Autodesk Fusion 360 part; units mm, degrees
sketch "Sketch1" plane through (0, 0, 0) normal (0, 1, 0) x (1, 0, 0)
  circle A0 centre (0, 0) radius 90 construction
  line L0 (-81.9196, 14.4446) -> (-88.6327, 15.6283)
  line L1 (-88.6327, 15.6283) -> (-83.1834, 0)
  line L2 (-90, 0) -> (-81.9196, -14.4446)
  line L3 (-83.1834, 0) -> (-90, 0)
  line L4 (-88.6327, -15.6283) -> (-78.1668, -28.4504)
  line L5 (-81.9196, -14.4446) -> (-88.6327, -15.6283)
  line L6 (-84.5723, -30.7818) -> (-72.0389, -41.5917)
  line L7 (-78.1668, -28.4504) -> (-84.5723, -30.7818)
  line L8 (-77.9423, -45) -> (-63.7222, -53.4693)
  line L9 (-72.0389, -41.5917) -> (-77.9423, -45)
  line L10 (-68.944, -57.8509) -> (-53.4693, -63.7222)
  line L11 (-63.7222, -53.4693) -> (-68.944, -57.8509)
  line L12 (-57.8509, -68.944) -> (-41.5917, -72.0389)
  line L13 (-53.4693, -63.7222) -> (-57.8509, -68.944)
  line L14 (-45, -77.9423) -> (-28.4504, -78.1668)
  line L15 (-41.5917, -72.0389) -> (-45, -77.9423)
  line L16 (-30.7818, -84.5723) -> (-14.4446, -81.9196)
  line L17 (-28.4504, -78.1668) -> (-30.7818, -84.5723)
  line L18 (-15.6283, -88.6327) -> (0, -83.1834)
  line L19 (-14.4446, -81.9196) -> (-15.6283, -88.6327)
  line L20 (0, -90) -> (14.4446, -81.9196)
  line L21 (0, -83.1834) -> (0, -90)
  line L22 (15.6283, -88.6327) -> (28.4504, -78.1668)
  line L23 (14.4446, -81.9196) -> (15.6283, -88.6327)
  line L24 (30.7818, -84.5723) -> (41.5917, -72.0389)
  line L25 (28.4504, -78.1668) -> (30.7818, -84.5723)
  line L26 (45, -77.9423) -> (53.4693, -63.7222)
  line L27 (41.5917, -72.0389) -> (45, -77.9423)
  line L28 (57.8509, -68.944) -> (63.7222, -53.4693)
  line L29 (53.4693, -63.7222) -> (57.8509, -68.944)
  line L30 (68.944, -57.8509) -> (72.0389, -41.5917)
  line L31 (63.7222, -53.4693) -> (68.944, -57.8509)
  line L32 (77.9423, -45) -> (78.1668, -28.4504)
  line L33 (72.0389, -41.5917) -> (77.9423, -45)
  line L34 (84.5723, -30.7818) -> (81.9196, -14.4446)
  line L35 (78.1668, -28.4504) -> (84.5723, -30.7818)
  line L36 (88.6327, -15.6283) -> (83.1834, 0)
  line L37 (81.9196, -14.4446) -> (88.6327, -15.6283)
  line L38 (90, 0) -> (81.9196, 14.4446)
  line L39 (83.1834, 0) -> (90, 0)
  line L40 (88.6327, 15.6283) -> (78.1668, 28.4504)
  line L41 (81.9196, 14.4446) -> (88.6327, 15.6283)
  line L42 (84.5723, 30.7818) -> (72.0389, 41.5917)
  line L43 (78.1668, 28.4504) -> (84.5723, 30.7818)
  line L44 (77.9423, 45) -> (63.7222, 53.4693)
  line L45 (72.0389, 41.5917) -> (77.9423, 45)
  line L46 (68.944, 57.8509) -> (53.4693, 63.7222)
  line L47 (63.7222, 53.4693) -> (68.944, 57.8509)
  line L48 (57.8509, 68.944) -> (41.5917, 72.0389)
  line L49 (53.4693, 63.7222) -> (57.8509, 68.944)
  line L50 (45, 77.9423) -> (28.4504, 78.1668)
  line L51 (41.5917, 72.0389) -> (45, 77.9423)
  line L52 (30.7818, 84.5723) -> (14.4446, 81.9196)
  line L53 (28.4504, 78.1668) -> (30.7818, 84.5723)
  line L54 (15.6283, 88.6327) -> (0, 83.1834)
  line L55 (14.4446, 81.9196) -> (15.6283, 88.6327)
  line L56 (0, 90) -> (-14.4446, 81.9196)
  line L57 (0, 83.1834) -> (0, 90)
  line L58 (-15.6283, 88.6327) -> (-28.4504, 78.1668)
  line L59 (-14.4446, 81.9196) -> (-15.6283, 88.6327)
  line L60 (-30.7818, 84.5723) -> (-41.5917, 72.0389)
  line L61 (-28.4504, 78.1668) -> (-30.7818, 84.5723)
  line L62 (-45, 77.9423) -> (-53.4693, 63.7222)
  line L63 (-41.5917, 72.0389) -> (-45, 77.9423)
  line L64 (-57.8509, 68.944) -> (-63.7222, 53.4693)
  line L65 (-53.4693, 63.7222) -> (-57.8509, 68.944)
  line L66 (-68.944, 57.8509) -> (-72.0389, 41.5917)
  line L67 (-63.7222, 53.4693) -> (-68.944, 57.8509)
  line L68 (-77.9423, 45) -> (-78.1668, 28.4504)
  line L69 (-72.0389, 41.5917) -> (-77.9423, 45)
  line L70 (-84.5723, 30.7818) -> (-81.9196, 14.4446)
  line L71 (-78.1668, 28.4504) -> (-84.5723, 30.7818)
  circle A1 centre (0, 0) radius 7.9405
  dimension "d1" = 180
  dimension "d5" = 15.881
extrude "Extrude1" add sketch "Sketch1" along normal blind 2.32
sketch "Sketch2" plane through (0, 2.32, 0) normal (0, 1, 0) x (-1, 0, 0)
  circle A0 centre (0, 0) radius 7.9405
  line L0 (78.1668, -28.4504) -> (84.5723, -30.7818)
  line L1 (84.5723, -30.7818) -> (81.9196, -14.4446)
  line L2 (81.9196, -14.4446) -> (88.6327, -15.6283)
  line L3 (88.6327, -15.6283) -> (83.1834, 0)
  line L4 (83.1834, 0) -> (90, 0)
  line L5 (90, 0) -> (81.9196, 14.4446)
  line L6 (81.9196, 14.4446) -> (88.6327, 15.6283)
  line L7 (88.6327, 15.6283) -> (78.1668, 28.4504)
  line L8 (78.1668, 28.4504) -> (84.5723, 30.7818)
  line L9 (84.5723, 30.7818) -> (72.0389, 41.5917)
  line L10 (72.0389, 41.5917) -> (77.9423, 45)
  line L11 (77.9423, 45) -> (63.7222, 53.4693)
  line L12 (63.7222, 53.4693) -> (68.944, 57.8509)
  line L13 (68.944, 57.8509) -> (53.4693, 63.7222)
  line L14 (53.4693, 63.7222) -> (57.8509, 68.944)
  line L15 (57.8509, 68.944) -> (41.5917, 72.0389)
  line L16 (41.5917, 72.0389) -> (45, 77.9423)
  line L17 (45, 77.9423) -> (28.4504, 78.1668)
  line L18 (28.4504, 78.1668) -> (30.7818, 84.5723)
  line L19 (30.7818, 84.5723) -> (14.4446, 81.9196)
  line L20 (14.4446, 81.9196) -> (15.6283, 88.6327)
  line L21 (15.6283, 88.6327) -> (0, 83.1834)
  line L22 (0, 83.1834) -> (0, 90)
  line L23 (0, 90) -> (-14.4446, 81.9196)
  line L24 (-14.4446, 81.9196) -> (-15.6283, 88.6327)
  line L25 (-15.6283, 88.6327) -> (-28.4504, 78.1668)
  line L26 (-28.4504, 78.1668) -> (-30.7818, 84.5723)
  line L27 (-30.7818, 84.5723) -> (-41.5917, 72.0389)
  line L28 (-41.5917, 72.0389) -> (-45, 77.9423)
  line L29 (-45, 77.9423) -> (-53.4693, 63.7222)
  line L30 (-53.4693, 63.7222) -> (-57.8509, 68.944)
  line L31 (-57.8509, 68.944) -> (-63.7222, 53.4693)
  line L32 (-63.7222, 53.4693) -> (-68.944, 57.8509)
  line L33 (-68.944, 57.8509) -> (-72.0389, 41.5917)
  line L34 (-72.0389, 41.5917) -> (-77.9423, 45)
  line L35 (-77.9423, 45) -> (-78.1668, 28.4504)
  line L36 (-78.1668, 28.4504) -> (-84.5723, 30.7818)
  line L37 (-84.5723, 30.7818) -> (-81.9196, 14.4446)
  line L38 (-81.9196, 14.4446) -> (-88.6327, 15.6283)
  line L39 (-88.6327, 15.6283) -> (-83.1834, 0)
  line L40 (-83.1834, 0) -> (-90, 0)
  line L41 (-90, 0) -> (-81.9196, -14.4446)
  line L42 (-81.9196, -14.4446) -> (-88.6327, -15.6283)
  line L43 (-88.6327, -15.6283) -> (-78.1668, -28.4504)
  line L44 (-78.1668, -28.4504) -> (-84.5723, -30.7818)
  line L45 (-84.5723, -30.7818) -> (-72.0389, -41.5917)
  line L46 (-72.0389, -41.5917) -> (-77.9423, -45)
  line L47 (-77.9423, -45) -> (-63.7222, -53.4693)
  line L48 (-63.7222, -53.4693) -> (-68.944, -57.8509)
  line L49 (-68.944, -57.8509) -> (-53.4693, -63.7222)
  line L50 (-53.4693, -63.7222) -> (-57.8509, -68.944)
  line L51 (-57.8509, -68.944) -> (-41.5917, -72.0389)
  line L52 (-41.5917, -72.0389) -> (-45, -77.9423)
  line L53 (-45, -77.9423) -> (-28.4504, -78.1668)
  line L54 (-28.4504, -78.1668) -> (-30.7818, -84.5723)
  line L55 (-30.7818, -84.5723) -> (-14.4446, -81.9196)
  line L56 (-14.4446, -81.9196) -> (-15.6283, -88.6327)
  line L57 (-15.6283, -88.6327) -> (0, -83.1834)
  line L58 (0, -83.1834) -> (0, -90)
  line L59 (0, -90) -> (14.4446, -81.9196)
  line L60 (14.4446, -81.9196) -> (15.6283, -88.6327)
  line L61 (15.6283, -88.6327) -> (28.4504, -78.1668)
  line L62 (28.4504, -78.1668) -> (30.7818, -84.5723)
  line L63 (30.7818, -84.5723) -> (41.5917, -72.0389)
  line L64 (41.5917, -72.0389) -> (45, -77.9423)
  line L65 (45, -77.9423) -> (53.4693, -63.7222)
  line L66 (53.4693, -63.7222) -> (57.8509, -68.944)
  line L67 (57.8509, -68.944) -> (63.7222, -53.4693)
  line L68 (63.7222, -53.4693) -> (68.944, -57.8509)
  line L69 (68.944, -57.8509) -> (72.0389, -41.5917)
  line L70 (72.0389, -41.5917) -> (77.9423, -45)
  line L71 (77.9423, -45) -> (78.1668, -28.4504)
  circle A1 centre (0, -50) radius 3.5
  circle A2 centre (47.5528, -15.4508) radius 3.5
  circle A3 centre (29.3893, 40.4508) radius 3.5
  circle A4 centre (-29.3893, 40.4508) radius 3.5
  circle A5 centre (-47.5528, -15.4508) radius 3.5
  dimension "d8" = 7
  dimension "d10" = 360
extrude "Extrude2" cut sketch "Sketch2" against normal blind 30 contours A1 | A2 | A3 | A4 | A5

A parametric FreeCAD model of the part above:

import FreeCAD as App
import Part
import Sketcher
Q = App.Units.Quantity

doc = App.newDocument("Part")
body = doc.addObject("PartDesign::Body", "Body")

sketch1 = body.newObject("Sketcher::SketchObject", "Sketch")
sketch1.AttachmentSupport = (doc.getObject("XZ_Plane"), [""])
sketch1.MapMode = "FlatFace"
sketch1.addGeometry([
    Part.LineSegment(App.Vector(-85, -31, 0), App.Vector(-82, -14, 0)),
    Part.LineSegment(App.Vector(-82, -14, 0), App.Vector(-89, -16, 0)),
    Part.LineSegment(App.Vector(-89, -16, 0), App.Vector(-83, 0, 0)),
    Part.LineSegment(App.Vector(-83, 0, 0), App.Vector(-90, 0, 0)),
    Part.LineSegment(App.Vector(-90, 0, 0), App.Vector(-82, 14, 0)),
    Part.LineSegment(App.Vector(-82, 14, 0), App.Vector(-89, 16, 0)),
    Part.LineSegment(App.Vector(-89, 16, 0), App.Vector(-78, 28, 0)),
    Part.LineSegment(App.Vector(-78, 28, 0), App.Vector(-85, 31, 0)),
    Part.LineSegment(App.Vector(-85, 31, 0), App.Vector(-72, 42, 0)),
    Part.LineSegment(App.Vector(-72, 42, 0), App.Vector(-78, 45, 0)),
    Part.LineSegment(App.Vector(-78, 45, 0), App.Vector(-64, 53, 0)),
    Part.LineSegment(App.Vector(-64, 53, 0), App.Vector(-69, 58, 0)),
    Part.LineSegment(App.Vector(-69, 58, 0), App.Vector(-53, 64, 0)),
    Part.LineSegment(App.Vector(-53, 64, 0), App.Vector(-58, 69, 0)),
    Part.LineSegment(App.Vector(-58, 69, 0), App.Vector(-42, 72, 0)),
    Part.LineSegment(App.Vector(-42, 72, 0), App.Vector(-45, 78, 0)),
    Part.LineSegment(App.Vector(-45, 78, 0), App.Vector(-28, 78, 0)),
    Part.LineSegment(App.Vector(-28, 78, 0), App.Vector(-31, 85, 0)),
    Part.LineSegment(App.Vector(-31, 85, 0), App.Vector(-14, 82, 0)),
    Part.LineSegment(App.Vector(-14, 82, 0), App.Vector(-16, 89, 0)),
    Part.LineSegment(App.Vector(-16, 89, 0), App.Vector(0, 83, 0)),
    Part.LineSegment(App.Vector(0, 83, 0), App.Vector(0, 90, 0)),
    Part.LineSegment(App.Vector(0, 90, 0), App.Vector(14, 82, 0)),
    Part.LineSegment(App.Vector(14, 82, 0), App.Vector(16, 89, 0)),
    Part.LineSegment(App.Vector(16, 89, 0), App.Vector(28, 78, 0)),
    Part.LineSegment(App.Vector(28, 78, 0), App.Vector(31, 85, 0)),
    Part.LineSegment(App.Vector(31, 85, 0), App.Vector(42, 72, 0)),
    Part.LineSegment(App.Vector(42, 72, 0), App.Vector(45, 78, 0)),
    Part.LineSegment(App.Vector(45, 78, 0), App.Vector(53, 64, 0)),
    Part.LineSegment(App.Vector(53, 64, 0), App.Vector(58, 69, 0)),
    Part.LineSegment(App.Vector(58, 69, 0), App.Vector(64, 53, 0)),
    Part.LineSegment(App.Vector(64, 53, 0), App.Vector(69, 58, 0)),
    Part.LineSegment(App.Vector(69, 58, 0), App.Vector(72, 42, 0)),
    Part.LineSegment(App.Vector(72, 42, 0), App.Vector(78, 45, 0)),
    Part.LineSegment(App.Vector(78, 45, 0), App.Vector(78, 28, 0)),
    Part.LineSegment(App.Vector(78, 28, 0), App.Vector(85, 31, 0)),
    Part.LineSegment(App.Vector(85, 31, 0), App.Vector(82, 14, 0)),
    Part.LineSegment(App.Vector(82, 14, 0), App.Vector(89, 16, 0)),
    Part.LineSegment(App.Vector(89, 16, 0), App.Vector(83, 0, 0)),
    Part.LineSegment(App.Vector(83, 0, 0), App.Vector(90, 0, 0)),
    Part.LineSegment(App.Vector(90, 0, 0), App.Vector(82, -14, 0)),
    Part.LineSegment(App.Vector(82, -14, 0), App.Vector(89, -16, 0)),
    Part.LineSegment(App.Vector(89, -16, 0), App.Vector(78, -28, 0)),
    Part.LineSegment(App.Vector(78, -28, 0), App.Vector(85, -31, 0)),
    Part.LineSegment(App.Vector(85, -31, 0), App.Vector(72, -42, 0)),
    Part.LineSegment(App.Vector(72, -42, 0), App.Vector(78, -45, 0)),
    Part.LineSegment(App.Vector(78, -45, 0), App.Vector(64, -53, 0)),
    Part.LineSegment(App.Vector(64, -53, 0), App.Vector(69, -58, 0)),
    Part.LineSegment(App.Vector(69, -58, 0), App.Vector(53, -64, 0)),
    Part.LineSegment(App.Vector(53, -64, 0), App.Vector(58, -69, 0)),
    Part.LineSegment(App.Vector(58, -69, 0), App.Vector(42, -72, 0)),
    Part.LineSegment(App.Vector(42, -72, 0), App.Vector(45, -78, 0)),
    Part.LineSegment(App.Vector(45, -78, 0), App.Vector(28, -78, 0)),
    Part.LineSegment(App.Vector(28, -78, 0), App.Vector(31, -85, 0)),
    Part.LineSegment(App.Vector(31, -85, 0), App.Vector(14, -82, 0)),
    Part.LineSegment(App.Vector(14, -82, 0), App.Vector(16, -89, 0)),
    Part.LineSegment(App.Vector(16, -89, 0), App.Vector(0, -83, 0)),
    Part.LineSegment(App.Vector(0, -83, 0), App.Vector(0, -90, 0)),
    Part.LineSegment(App.Vector(0, -90, 0), App.Vector(-14, -82, 0)),
    Part.LineSegment(App.Vector(-14, -82, 0), App.Vector(-16, -89, 0)),
    Part.LineSegment(App.Vector(-16, -89, 0), App.Vector(-28, -78, 0)),
    Part.LineSegment(App.Vector(-28, -78, 0), App.Vector(-31, -85, 0)),
    Part.LineSegment(App.Vector(-31, -85, 0), App.Vector(-42, -72, 0)),
    Part.LineSegment(App.Vector(-42, -72, 0), App.Vector(-45, -78, 0)),
    Part.LineSegment(App.Vector(-45, -78, 0), App.Vector(-53, -64, 0)),
    Part.LineSegment(App.Vector(-53, -64, 0), App.Vector(-58, -69, 0)),
    Part.LineSegment(App.Vector(-58, -69, 0), App.Vector(-64, -53, 0)),
    Part.LineSegment(App.Vector(-64, -53, 0), App.Vector(-69, -58, 0)),
    Part.LineSegment(App.Vector(-69, -58, 0), App.Vector(-72, -42, 0)),
    Part.LineSegment(App.Vector(-72, -42, 0), App.Vector(-78, -45, 0)),
    Part.LineSegment(App.Vector(-78, -45, 0), App.Vector(-78, -28, 0)),
    Part.LineSegment(App.Vector(-78, -28, 0), App.Vector(-85, -31, 0)),
    Part.Circle(App.Vector(0, 0, 0), App.Vector(0, 0, 1), 8),
], False)
sketch1.addConstraint([
    Sketcher.Constraint("Coincident", 0, 2, 1, 1),
    Sketcher.Constraint("Coincident", 1, 2, 2, 1),
    Sketcher.Constraint("Coincident", 2, 2, 3, 1),
    Sketcher.Constraint("Coincident", 3, 2, 4, 1),
    Sketcher.Constraint("Coincident", 4, 2, 5, 1),
    Sketcher.Constraint("Coincident", 5, 2, 6, 1),
    Sketcher.Constraint("Coincident", 6, 2, 7, 1),
    Sketcher.Constraint("Coincident", 7, 2, 8, 1),
    Sketcher.Constraint("Coincident", 8, 2, 9, 1),
    Sketcher.Constraint("Coincident", 9, 2, 10, 1),
    Sketcher.Constraint("Coincident", 10, 2, 11, 1),
    Sketcher.Constraint("Coincident", 11, 2, 12, 1),
    Sketcher.Constraint("Coincident", 12, 2, 13, 1),
    Sketcher.Constraint("Coincident", 13, 2, 14, 1),
    Sketcher.Constraint("Coincident", 14, 2, 15, 1),
    Sketcher.Constraint("Coincident", 15, 2, 16, 1),
    Sketcher.Constraint("Coincident", 16, 2, 17, 1),
    Sketcher.Constraint("Coincident", 17, 2, 18, 1),
    Sketcher.Constraint("Coincident", 18, 2, 19, 1),
    Sketcher.Constraint("Coincident", 19, 2, 20, 1),
    Sketcher.Constraint("Coincident", 20, 2, 21, 1),
    Sketcher.Constraint("Coincident", 21, 2, 22, 1),
    Sketcher.Constraint("Coincident", 22, 2, 23, 1),
    Sketcher.Constraint("Coincident", 23, 2, 24, 1),
    Sketcher.Constraint("Coincident", 24, 2, 25, 1),
    Sketcher.Constraint("Coincident", 25, 2, 26, 1),
    Sketcher.Constraint("Coincident", 26, 2, 27, 1),
    Sketcher.Constraint("Coincident", 27, 2, 28, 1),
    Sketcher.Constraint("Coincident", 28, 2, 29, 1),
    Sketcher.Constraint("Coincident", 29, 2, 30, 1),
    Sketcher.Constraint("Coincident", 30, 2, 31, 1),
    Sketcher.Constraint("Coincident", 31, 2, 32, 1),
    Sketcher.Constraint("Coincident", 32, 2, 33, 1),
    Sketcher.Constraint("Coincident", 33, 2, 34, 1),
    Sketcher.Constraint("Coincident", 34, 2, 35, 1),
    Sketcher.Constraint("Coincident", 35, 2, 36, 1),
    Sketcher.Constraint("Coincident", 36, 2, 37, 1),
    Sketcher.Constraint("Coincident", 37, 2, 38, 1),
    Sketcher.Constraint("Coincident", 38, 2, 39, 1),
    Sketcher.Constraint("Coincident", 39, 2, 40, 1),
    Sketcher.Constraint("Coincident", 40, 2, 41, 1),
    Sketcher.Constraint("Coincident", 41, 2, 42, 1),
    Sketcher.Constraint("Coincident", 42, 2, 43, 1),
    Sketcher.Constraint("Coincident", 43, 2, 44, 1),
    Sketcher.Constraint("Coincident", 44, 2, 45, 1),
    Sketcher.Constraint("Coincident", 45, 2, 46, 1),
    Sketcher.Constraint("Coincident", 46, 2, 47, 1),
    Sketcher.Constraint("Coincident", 47, 2, 48, 1),
    Sketcher.Constraint("Coincident", 48, 2, 49, 1),
    Sketcher.Constraint("Coincident", 49, 2, 50, 1),
    Sketcher.Constraint("Coincident", 50, 2, 51, 1),
    Sketcher.Constraint("Coincident", 51, 2, 52, 1),
    Sketcher.Constraint("Coincident", 52, 2, 53, 1),
    Sketcher.Constraint("Coincident", 53, 2, 54, 1),
    Sketcher.Constraint("Coincident", 54, 2, 55, 1),
    Sketcher.Constraint("Coincident", 55, 2, 56, 1),
    Sketcher.Constraint("Coincident", 56, 2, 57, 1),
    Sketcher.Constraint("Coincident", 57, 2, 58, 1),
    Sketcher.Constraint("Coincident", 58, 2, 59, 1),
    Sketcher.Constraint("Coincident", 59, 2, 60, 1),
    Sketcher.Constraint("Coincident", 60, 2, 61, 1),
    Sketcher.Constraint("Coincident", 61, 2, 62, 1),
    Sketcher.Constraint("Coincident", 62, 2, 63, 1),
    Sketcher.Constraint("Coincident", 63, 2, 64, 1),
    Sketcher.Constraint("Coincident", 64, 2, 65, 1),
    Sketcher.Constraint("Coincident", 65, 2, 66, 1),
    Sketcher.Constraint("Coincident", 66, 2, 67, 1),
    Sketcher.Constraint("Coincident", 67, 2, 68, 1),
    Sketcher.Constraint("Coincident", 68, 2, 69, 1),
    Sketcher.Constraint("Coincident", 69, 2, 70, 1),
    Sketcher.Constraint("Coincident", 70, 2, 71, 1),
    Sketcher.Constraint("Coincident", 71, 2, 0, 1),
    Sketcher.Constraint("Horizontal", 3),
    Sketcher.Constraint("Vertical", 21),
    Sketcher.Constraint("Horizontal", 39),
    Sketcher.Constraint("Vertical", 57),
    Sketcher.Constraint("Coincident", 72, 3, -1, 1),
    Sketcher.Constraint("Symmetric", 0, 2, 36, 2, -1, 1),
    Sketcher.Constraint("Symmetric", 1, 2, 37, 2, -1, 1),
    Sketcher.Constraint("Symmetric", 2, 2, 38, 2, -1, 1),
    Sketcher.Constraint("Symmetric", 4, 2, 40, 2, -1, 1),
    Sketcher.Constraint("Symmetric", 5, 2, 41, 2, -1, 1),
    Sketcher.Constraint("Symmetric", 6, 2, 42, 2, -1, 1),
    Sketcher.Constraint("Symmetric", 7, 2, 43, 2, -1, 1),
    Sketcher.Constraint("Symmetric", 8, 2, 44, 2, -1, 1),
    Sketcher.Constraint("Symmetric", 9, 2, 45, 2, -1, 1),
    Sketcher.Constraint("Symmetric", 10, 2, 46, 2, -1, 1),
    Sketcher.Constraint("Symmetric", 11, 2, 47, 2, -1, 1),
    Sketcher.Constraint("Symmetric", 12, 2, 48, 2, -1, 1),
    Sketcher.Constraint("Symmetric", 13, 2, 49, 2, -1, 1),
    Sketcher.Constraint("Symmetric", 14, 2, 50, 2, -1, 1),
    Sketcher.Constraint("Symmetric", 15, 2, 51, 2, -1, 1),
    Sketcher.Constraint("Symmetric", 16, 2, 52, 2, -1, 1),
    Sketcher.Constraint("Symmetric", 17, 2, 53, 2, -1, 1),
    Sketcher.Constraint("Symmetric", 18, 2, 54, 2, -1, 1),
    Sketcher.Constraint("Symmetric", 19, 2, 55, 2, -1, 1),
    Sketcher.Constraint("Symmetric", 20, 2, 56, 2, -1, 1),
    Sketcher.Constraint("Symmetric", 22, 2, 58, 2, -1, 1),
    Sketcher.Constraint("Symmetric", 23, 2, 59, 2, -1, 1),
    Sketcher.Constraint("Symmetric", 24, 2, 60, 2, -1, 1),
    Sketcher.Constraint("Symmetric", 25, 2, 61, 2, -1, 1),
    Sketcher.Constraint("Symmetric", 26, 2, 62, 2, -1, 1),
    Sketcher.Constraint("Symmetric", 27, 2, 63, 2, -1, 1),
    Sketcher.Constraint("Symmetric", 28, 2, 64, 2, -1, 1),
    Sketcher.Constraint("Symmetric", 29, 2, 65, 2, -1, 1),
    Sketcher.Constraint("Symmetric", 30, 2, 66, 2, -1, 1),
    Sketcher.Constraint("Symmetric", 31, 2, 67, 2, -1, 1),
    Sketcher.Constraint("Symmetric", 32, 2, 68, 2, -1, 1),
    Sketcher.Constraint("Symmetric", 33, 2, 69, 2, -1, 1),
    Sketcher.Constraint("Symmetric", 34, 2, 70, 2, -1, 1),
    Sketcher.Constraint("Symmetric", 35, 2, 71, 2, -1, 1),
    Sketcher.Constraint("Symmetric", 18, 2, 22, 2, -2),
    Sketcher.Constraint("Symmetric", 19, 2, 23, 2, -2),
    Sketcher.Constraint("Symmetric", 16, 2, 24, 2, -2),
    Sketcher.Constraint("Symmetric", 17, 2, 25, 2, -2),
    Sketcher.Constraint("Symmetric", 14, 2, 26, 2, -2),
    Sketcher.Constraint("Symmetric", 15, 2, 27, 2, -2),
    Sketcher.Constraint("Symmetric", 12, 2, 28, 2, -2),
    Sketcher.Constraint("Symmetric", 13, 2, 29, 2, -2),
    Sketcher.Constraint("Symmetric", 10, 2, 30, 2, -2),
    Sketcher.Constraint("Symmetric", 11, 2, 31, 2, -2),
    Sketcher.Constraint("Symmetric", 8, 2, 32, 2, -2),
    Sketcher.Constraint("Symmetric", 9, 2, 33, 2, -2),
    Sketcher.Constraint("Symmetric", 6, 2, 34, 2, -2),
    Sketcher.Constraint("Symmetric", 7, 2, 35, 2, -2),
    Sketcher.Constraint("Symmetric", 4, 2, 36, 2, -2),
    Sketcher.Constraint("Symmetric", 5, 2, 37, 2, -2),
    Sketcher.Constraint("Symmetric", 3, 2, 39, 2, -2),
    Sketcher.Constraint("Symmetric", 21, 2, 57, 2, -1),
    Sketcher.Constraint("Perpendicular", 0, 18),
    Sketcher.Constraint("Perpendicular", 1, 19),
    Sketcher.Constraint("Perpendicular", 2, 20),
    Sketcher.Constraint("Perpendicular", 4, 22),
    Sketcher.Constraint("Perpendicular", 6, 24),
    Sketcher.Constraint("Perpendicular", 7, 25),
    Sketcher.Constraint("Perpendicular", 8, 26),
    Sketcher.Constraint("Perpendicular", 9, 27),
    Sketcher.Constraint("Perpendicular", 10, 28),
    Sketcher.Constraint("Perpendicular", 11, 29),
    Sketcher.Constraint("Perpendicular", 12, 30),
    Sketcher.Constraint("Perpendicular", 14, 32),
    Sketcher.Constraint("Perpendicular", 16, 34),
    Sketcher.Constraint("Equal", 39, 21),
    Sketcher.Constraint("Equal", 0, 2),
    Sketcher.Constraint("Equal", 2, 4),
    Sketcher.Constraint("Equal", 4, 6),
    Sketcher.Constraint("Equal", 5, 7),
    Sketcher.Constraint("Equal", 6, 8),
    Sketcher.Constraint("Equal", 7, 9),
    Sketcher.Constraint("Equal", 8, 10),
    Sketcher.Constraint("Equal", 9, 11),
    Sketcher.Constraint("Equal", 10, 12),
    Sketcher.Constraint("Equal", 11, 13),
    Sketcher.Constraint("Equal", 12, 14),
    Sketcher.Constraint("Equal", 13, 15),
    Sketcher.Constraint("Equal", 14, 16),
    Sketcher.Constraint("Equal", 15, 17),
    Sketcher.Constraint("Equal", 16, 18),
    Sketcher.Constraint("Diameter", 72, Q("15.881 mm")),
    Sketcher.Constraint("Angle", 1, Q("-170 deg")),
    Sketcher.Constraint("Angle", 7, Q("160 deg")),
    Sketcher.Constraint("Angle", 9, Q("150.0002 deg")),
    Sketcher.Constraint("Angle", 11, Q("140 deg")),
    Sketcher.Constraint("DistanceX", 3, 2, -1, 1, Q("90 mm")),
    Sketcher.Constraint("DistanceY", -1, 1, 9, 2, Q("45 mm")),
    Sketcher.Constraint("Distance", 2, Q("16.551 mm")),
])
pad1 = body.newObject("PartDesign::Pad", "Pad")
pad1.Profile = sketch1
pad1.Length = 2.32
pad1.Reversed = True

sketch2 = body.newObject("Sketcher::SketchObject", "Sketch001")
sketch2.AttachmentSupport = (doc.getObject("XZ_Plane"), [""])
sketch2.MapMode = "FlatFace"
sketch2.AttachmentOffset = App.Placement(App.Vector(0, 0, -2.32), App.Rotation())
sketch2.addGeometry([
    Part.Circle(App.Vector(0, -50, 0), App.Vector(0, 0, 1), 3.5),
    Part.Circle(App.Vector(-47.6, -15.5, 0), App.Vector(0, 0, 1), 3.5),
    Part.Circle(App.Vector(-29.4, 40.5, 0), App.Vector(0, 0, 1), 3.5),
    Part.Circle(App.Vector(29.4, 40.5, 0), App.Vector(0, 0, 1), 3.5),
    Part.Circle(App.Vector(47.6, -15.5, 0), App.Vector(0, 0, 1), 3.5),
], False)
sketch2.addConstraint([
    Sketcher.Constraint("Equal", 0, 1),
    Sketcher.Constraint("Equal", 1, 2),
    Sketcher.Constraint("Equal", 2, 3),
    Sketcher.Constraint("Equal", 3, 4),
    Sketcher.Constraint("Symmetric", 2, 3, 3, 3, -2),
    Sketcher.Constraint("Symmetric", 1, 3, 4, 3, -2),
    Sketcher.Constraint("PointOnObject", 0, 3, -2),
    Sketcher.Constraint("Diameter", 0, Q("7 mm")),
    Sketcher.Constraint("DistanceY", 0, 3, -1, 1, Q("50 mm")),
    Sketcher.Constraint("DistanceX", 1, 3, 3, 3, Q("76.942 mm")),
    Sketcher.Constraint("DistanceX", 1, 3, -1, 1, Q("47.5528 mm")),
    Sketcher.Constraint("DistanceY", 1, 3, -1, 1, Q("15.4508 mm")),
    Sketcher.Constraint("DistanceY", -1, 1, 2, 3, Q("40.4508 mm")),
])
pocket1 = body.newObject("PartDesign::Pocket", "Pocket")
pocket1.Profile = sketch2
pocket1.Length = 30
pocket1.Reversed = True

doc.recompute()
